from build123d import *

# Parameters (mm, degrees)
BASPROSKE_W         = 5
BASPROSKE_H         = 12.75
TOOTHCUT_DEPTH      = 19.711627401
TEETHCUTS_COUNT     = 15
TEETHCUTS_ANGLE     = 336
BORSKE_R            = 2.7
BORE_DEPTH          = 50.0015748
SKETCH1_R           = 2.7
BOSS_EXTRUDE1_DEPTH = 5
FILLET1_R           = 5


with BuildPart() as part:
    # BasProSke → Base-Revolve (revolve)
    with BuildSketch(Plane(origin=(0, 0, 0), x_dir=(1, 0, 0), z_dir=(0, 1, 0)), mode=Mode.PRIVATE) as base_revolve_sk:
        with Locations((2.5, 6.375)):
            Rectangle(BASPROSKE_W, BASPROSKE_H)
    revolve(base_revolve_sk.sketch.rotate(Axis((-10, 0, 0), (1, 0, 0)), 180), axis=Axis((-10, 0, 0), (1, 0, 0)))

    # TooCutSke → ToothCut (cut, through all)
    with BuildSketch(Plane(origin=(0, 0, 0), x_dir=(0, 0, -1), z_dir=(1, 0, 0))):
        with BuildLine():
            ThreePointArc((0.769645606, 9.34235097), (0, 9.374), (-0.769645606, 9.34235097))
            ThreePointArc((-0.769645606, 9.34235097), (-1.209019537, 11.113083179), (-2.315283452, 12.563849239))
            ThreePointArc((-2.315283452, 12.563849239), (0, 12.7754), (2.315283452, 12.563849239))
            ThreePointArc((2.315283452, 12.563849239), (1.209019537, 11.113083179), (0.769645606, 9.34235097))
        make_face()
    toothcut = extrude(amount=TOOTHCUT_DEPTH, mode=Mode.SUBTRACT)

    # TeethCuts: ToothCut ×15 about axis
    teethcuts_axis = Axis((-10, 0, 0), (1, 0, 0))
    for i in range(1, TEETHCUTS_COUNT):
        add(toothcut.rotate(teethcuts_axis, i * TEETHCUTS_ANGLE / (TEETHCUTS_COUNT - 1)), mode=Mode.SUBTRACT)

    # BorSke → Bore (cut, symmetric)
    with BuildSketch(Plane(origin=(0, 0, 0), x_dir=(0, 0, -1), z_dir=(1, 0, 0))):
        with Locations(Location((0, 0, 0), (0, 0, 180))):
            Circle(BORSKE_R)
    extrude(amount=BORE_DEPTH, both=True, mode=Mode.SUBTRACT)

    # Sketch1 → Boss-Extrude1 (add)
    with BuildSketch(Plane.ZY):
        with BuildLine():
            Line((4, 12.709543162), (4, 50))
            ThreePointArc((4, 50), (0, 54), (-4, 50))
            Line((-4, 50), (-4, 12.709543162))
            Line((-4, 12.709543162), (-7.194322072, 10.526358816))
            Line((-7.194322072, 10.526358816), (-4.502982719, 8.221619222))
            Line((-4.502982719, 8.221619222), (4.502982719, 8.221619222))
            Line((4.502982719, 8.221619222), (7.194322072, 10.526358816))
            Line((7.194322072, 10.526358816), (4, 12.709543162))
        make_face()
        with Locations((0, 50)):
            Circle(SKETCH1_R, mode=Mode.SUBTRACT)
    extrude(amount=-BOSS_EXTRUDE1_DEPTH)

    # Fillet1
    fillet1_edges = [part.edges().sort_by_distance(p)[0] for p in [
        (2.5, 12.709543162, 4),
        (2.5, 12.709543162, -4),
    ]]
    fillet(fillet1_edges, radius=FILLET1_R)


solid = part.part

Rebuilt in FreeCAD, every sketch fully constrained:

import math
import FreeCAD as App
import Part
import Sketcher

V = App.Vector


def edges_at(feature, points):
    """Names of the edges that pass closest to the given points."""
    edges = feature.Shape.Edges
    near = lambda p: min(range(len(edges)), key=lambda i: edges[i].distToShape(Part.Vertex(*p))[0])
    return sorted({f"Edge{near(p) + 1}" for p in points})


def add_polygon(sketch, points):
    """Adds a closed chain of lines whose ends are joined by coincident constraints."""
    first, n = sketch.GeometryCount, len(points)
    for a, b in zip(points, points[1:] + points[:1]):
        sketch.addGeometry(Part.LineSegment(App.Vector(*a, 0), App.Vector(*b, 0)), False)
    for i in range(n):
        sketch.addConstraint(Sketcher.Constraint("Coincident", first + i, 2, first + (i + 1) % n, 1))

doc = App.newDocument("Part")
body = doc.addObject("PartDesign::Body", "Body")

# Sketch on XZ plane
sketch1 = body.newObject("Sketcher::SketchObject", "Sketch")
sketch1.AttachmentSupport = (doc.getObject("XZ_Plane"), [""])
sketch1.MapMode = "FlatFace"
add_polygon(sketch1, [(0, -13), (0, 0), (5, 0), (5, -13)])  # lines 0-3
sketch1.addConstraint([
    Sketcher.Constraint("Vertical", 0),
    Sketcher.Constraint("Horizontal", 1),
    Sketcher.Constraint("Vertical", 2),
    Sketcher.Constraint("Horizontal", 3),
    Sketcher.Constraint("Coincident", 0, 2, -1, 1),
    Sketcher.Constraint("DistanceX", 1, 1, 1, 2, 5.0),
    Sketcher.Constraint("DistanceY", 0, 1, 0, 2, 12.75),
])
revolution = body.newObject("PartDesign::Revolution", "Revolution")
revolution.Profile = sketch1
revolution.ReferenceAxis = (sketch1, ["H_Axis"])
revolution.Angle = 360

# Sketch on YZ plane
sketch2 = body.newObject("Sketcher::SketchObject", "Sketch001")
sketch2.AttachmentSupport = (doc.getObject("YZ_Plane"), [""])
sketch2.MapMode = "FlatFace"
sketch2.addGeometry([
    Part.ArcOfCircle(Part.Circle(V(0, 0, 0), V(0, 0, 1), 9.4), math.radians(-4.71), math.radians(4.71)),
    Part.ArcOfCircle(Part.Circle(V(9.2, -5.3, 0), V(0, 0, 1), 4.5), math.radians(41), math.radians(88)),
    Part.ArcOfCircle(Part.Circle(V(0, 0, 0), V(0, 0, 1), 12.8), math.radians(-10), math.radians(10)),
    Part.ArcOfCircle(Part.Circle(V(9.2, 5.3, 0), V(0, 0, 1), 4.5), math.radians(-88), math.radians(-41)),
], False)
sketch2.addConstraint([
    Sketcher.Constraint("Coincident", 0, 1, 1, 2),
    Sketcher.Constraint("Coincident", 1, 1, 2, 1),
    Sketcher.Constraint("Coincident", 2, 2, 3, 2),
    Sketcher.Constraint("Coincident", 3, 1, 0, 2),
    Sketcher.Constraint("Coincident", 0, 3, -1, 1),
    Sketcher.Constraint("Coincident", 2, 3, -1, 1),
    Sketcher.Constraint("Equal", 1, 3),
    Sketcher.Constraint("Symmetric", 1, 3, 3, 3, -1),
    Sketcher.Constraint("Radius", 1, 4.5),
    Sketcher.Constraint("Radius", 0, 9.374),
    Sketcher.Constraint("Radius", 2, 12.7754),
    Sketcher.Constraint("DistanceX", 0, 1, 1, 1, 3.221498),
    Sketcher.Constraint("DistanceX", -1, 1, 1, 3, 9.166491),
])
pocket1 = body.newObject("PartDesign::Pocket", "Pocket")
pocket1.Profile = sketch2
pocket1.Type = "ThroughAll"
pocket1.Reversed = True
doc.recompute()

polarpattern = body.newObject("PartDesign::PolarPattern", "PolarPattern")
polarpattern.Originals = [pocket1]
polarpattern.Axis = (doc.getObject("X_Axis"), [""])
polarpattern.Angle = 360
polarpattern.Occurrences = 15
body.Tip = polarpattern

# Sketch on YZ plane
sketch3 = body.newObject("Sketcher::SketchObject", "Sketch002")
sketch3.AttachmentSupport = (doc.getObject("YZ_Plane"), [""])
sketch3.MapMode = "FlatFace"
sketch3.addGeometry(Part.Circle(V(0, 0, 0), V(0, 0, 1), 2.7), False)
sketch3.addConstraint([
    Sketcher.Constraint("Coincident", 0, 3, -1, 1),
    Sketcher.Constraint("Diameter", 0, 5.4),
])
pocket2 = body.newObject("PartDesign::Pocket", "Pocket001")
pocket2.Profile = sketch3
pocket2.Length = 100.00315
pocket2.Midplane = True

# Sketch on YZ plane
sketch4 = body.newObject("Sketcher::SketchObject", "Sketch003")
sketch4.AttachmentSupport = (doc.getObject("YZ_Plane"), [""])
sketch4.MapMode = "FlatFace"
sketch4.addGeometry([
    Part.LineSegment(V(12.7, 4, 0), V(50, 4, 0)),  # 0
    Part.ArcOfCircle(Part.Circle(V(50, 0, 0), V(0, 0, 1), 4), math.radians(-90), math.radians(90)),  # 1
    Part.LineSegment(V(50, -4, 0), V(12.7, -4, 0)),  # 2
    Part.LineSegment(V(12.7, -4, 0), V(10.5, -7.2, 0)),  # 3
    Part.LineSegment(V(10.5, -7.2, 0), V(8.2, -4.5, 0)),  # 4
    Part.LineSegment(V(8.2, -4.5, 0), V(8.2, 4.5, 0)),  # 5
    Part.LineSegment(V(8.2, 4.5, 0), V(10.5, 7.2, 0)),  # 6
    Part.LineSegment(V(10.5, 7.2, 0), V(12.7, 4, 0)),  # 7
    Part.Circle(V(50, 0, 0), V(0, 0, 1), 2.7),  # 8
], False)
sketch4.addConstraint([
    Sketcher.Constraint("Tangent", 0, 2, 1, 2),
    Sketcher.Constraint("Tangent", 1, 1, 2, 1),
    Sketcher.Constraint("Coincident", 2, 2, 3, 1),
    Sketcher.Constraint("Coincident", 3, 2, 4, 1),
    Sketcher.Constraint("Coincident", 4, 2, 5, 1),
    Sketcher.Constraint("Coincident", 5, 2, 6, 1),
    Sketcher.Constraint("Coincident", 6, 2, 7, 1),
    Sketcher.Constraint("Coincident", 7, 2, 0, 1),
    Sketcher.Constraint("Horizontal", 0),
    Sketcher.Constraint("Horizontal", 2),
    Sketcher.Constraint("Vertical", 5),
    Sketcher.Constraint("Coincident", 8, 3, 1, 3),
    Sketcher.Constraint("Symmetric", 3, 2, 6, 2, -1),
    Sketcher.Constraint("Symmetric", 2, 2, 7, 2, -1),
    Sketcher.Constraint("Equal", 4, 6),
    Sketcher.Constraint("Radius", 1, 4.0),
    Sketcher.Constraint("Diameter", 8, 5.4),
    Sketcher.Constraint("DistanceX", -1, 1, 1, 3, 50.0),
    Sketcher.Constraint("DistanceX", 0, 1, 0, 2, 37.290457),
    Sketcher.Constraint("DistanceY", 5, 1, 5, 2, 9.005965),
    Sketcher.Constraint("DistanceX", -1, 1, 3, 2, 10.526359),
    Sketcher.Constraint("DistanceX", -1, 1, 4, 2, 8.221619),
    Sketcher.Constraint("DistanceY", 3, 2, 4, 2, 2.691339),
])
pad1 = body.newObject("PartDesign::Pad", "Pad")
pad1.Profile = sketch4
pad1.Length = 5
doc.recompute()

fillet = body.newObject("PartDesign::Fillet", "Fillet")
fillet.Base = (pad1, edges_at(pad1, [(2.5, 12.71, 4), (2.5, 12.71, -4)]))
fillet.Radius = 5

doc.recompute()
